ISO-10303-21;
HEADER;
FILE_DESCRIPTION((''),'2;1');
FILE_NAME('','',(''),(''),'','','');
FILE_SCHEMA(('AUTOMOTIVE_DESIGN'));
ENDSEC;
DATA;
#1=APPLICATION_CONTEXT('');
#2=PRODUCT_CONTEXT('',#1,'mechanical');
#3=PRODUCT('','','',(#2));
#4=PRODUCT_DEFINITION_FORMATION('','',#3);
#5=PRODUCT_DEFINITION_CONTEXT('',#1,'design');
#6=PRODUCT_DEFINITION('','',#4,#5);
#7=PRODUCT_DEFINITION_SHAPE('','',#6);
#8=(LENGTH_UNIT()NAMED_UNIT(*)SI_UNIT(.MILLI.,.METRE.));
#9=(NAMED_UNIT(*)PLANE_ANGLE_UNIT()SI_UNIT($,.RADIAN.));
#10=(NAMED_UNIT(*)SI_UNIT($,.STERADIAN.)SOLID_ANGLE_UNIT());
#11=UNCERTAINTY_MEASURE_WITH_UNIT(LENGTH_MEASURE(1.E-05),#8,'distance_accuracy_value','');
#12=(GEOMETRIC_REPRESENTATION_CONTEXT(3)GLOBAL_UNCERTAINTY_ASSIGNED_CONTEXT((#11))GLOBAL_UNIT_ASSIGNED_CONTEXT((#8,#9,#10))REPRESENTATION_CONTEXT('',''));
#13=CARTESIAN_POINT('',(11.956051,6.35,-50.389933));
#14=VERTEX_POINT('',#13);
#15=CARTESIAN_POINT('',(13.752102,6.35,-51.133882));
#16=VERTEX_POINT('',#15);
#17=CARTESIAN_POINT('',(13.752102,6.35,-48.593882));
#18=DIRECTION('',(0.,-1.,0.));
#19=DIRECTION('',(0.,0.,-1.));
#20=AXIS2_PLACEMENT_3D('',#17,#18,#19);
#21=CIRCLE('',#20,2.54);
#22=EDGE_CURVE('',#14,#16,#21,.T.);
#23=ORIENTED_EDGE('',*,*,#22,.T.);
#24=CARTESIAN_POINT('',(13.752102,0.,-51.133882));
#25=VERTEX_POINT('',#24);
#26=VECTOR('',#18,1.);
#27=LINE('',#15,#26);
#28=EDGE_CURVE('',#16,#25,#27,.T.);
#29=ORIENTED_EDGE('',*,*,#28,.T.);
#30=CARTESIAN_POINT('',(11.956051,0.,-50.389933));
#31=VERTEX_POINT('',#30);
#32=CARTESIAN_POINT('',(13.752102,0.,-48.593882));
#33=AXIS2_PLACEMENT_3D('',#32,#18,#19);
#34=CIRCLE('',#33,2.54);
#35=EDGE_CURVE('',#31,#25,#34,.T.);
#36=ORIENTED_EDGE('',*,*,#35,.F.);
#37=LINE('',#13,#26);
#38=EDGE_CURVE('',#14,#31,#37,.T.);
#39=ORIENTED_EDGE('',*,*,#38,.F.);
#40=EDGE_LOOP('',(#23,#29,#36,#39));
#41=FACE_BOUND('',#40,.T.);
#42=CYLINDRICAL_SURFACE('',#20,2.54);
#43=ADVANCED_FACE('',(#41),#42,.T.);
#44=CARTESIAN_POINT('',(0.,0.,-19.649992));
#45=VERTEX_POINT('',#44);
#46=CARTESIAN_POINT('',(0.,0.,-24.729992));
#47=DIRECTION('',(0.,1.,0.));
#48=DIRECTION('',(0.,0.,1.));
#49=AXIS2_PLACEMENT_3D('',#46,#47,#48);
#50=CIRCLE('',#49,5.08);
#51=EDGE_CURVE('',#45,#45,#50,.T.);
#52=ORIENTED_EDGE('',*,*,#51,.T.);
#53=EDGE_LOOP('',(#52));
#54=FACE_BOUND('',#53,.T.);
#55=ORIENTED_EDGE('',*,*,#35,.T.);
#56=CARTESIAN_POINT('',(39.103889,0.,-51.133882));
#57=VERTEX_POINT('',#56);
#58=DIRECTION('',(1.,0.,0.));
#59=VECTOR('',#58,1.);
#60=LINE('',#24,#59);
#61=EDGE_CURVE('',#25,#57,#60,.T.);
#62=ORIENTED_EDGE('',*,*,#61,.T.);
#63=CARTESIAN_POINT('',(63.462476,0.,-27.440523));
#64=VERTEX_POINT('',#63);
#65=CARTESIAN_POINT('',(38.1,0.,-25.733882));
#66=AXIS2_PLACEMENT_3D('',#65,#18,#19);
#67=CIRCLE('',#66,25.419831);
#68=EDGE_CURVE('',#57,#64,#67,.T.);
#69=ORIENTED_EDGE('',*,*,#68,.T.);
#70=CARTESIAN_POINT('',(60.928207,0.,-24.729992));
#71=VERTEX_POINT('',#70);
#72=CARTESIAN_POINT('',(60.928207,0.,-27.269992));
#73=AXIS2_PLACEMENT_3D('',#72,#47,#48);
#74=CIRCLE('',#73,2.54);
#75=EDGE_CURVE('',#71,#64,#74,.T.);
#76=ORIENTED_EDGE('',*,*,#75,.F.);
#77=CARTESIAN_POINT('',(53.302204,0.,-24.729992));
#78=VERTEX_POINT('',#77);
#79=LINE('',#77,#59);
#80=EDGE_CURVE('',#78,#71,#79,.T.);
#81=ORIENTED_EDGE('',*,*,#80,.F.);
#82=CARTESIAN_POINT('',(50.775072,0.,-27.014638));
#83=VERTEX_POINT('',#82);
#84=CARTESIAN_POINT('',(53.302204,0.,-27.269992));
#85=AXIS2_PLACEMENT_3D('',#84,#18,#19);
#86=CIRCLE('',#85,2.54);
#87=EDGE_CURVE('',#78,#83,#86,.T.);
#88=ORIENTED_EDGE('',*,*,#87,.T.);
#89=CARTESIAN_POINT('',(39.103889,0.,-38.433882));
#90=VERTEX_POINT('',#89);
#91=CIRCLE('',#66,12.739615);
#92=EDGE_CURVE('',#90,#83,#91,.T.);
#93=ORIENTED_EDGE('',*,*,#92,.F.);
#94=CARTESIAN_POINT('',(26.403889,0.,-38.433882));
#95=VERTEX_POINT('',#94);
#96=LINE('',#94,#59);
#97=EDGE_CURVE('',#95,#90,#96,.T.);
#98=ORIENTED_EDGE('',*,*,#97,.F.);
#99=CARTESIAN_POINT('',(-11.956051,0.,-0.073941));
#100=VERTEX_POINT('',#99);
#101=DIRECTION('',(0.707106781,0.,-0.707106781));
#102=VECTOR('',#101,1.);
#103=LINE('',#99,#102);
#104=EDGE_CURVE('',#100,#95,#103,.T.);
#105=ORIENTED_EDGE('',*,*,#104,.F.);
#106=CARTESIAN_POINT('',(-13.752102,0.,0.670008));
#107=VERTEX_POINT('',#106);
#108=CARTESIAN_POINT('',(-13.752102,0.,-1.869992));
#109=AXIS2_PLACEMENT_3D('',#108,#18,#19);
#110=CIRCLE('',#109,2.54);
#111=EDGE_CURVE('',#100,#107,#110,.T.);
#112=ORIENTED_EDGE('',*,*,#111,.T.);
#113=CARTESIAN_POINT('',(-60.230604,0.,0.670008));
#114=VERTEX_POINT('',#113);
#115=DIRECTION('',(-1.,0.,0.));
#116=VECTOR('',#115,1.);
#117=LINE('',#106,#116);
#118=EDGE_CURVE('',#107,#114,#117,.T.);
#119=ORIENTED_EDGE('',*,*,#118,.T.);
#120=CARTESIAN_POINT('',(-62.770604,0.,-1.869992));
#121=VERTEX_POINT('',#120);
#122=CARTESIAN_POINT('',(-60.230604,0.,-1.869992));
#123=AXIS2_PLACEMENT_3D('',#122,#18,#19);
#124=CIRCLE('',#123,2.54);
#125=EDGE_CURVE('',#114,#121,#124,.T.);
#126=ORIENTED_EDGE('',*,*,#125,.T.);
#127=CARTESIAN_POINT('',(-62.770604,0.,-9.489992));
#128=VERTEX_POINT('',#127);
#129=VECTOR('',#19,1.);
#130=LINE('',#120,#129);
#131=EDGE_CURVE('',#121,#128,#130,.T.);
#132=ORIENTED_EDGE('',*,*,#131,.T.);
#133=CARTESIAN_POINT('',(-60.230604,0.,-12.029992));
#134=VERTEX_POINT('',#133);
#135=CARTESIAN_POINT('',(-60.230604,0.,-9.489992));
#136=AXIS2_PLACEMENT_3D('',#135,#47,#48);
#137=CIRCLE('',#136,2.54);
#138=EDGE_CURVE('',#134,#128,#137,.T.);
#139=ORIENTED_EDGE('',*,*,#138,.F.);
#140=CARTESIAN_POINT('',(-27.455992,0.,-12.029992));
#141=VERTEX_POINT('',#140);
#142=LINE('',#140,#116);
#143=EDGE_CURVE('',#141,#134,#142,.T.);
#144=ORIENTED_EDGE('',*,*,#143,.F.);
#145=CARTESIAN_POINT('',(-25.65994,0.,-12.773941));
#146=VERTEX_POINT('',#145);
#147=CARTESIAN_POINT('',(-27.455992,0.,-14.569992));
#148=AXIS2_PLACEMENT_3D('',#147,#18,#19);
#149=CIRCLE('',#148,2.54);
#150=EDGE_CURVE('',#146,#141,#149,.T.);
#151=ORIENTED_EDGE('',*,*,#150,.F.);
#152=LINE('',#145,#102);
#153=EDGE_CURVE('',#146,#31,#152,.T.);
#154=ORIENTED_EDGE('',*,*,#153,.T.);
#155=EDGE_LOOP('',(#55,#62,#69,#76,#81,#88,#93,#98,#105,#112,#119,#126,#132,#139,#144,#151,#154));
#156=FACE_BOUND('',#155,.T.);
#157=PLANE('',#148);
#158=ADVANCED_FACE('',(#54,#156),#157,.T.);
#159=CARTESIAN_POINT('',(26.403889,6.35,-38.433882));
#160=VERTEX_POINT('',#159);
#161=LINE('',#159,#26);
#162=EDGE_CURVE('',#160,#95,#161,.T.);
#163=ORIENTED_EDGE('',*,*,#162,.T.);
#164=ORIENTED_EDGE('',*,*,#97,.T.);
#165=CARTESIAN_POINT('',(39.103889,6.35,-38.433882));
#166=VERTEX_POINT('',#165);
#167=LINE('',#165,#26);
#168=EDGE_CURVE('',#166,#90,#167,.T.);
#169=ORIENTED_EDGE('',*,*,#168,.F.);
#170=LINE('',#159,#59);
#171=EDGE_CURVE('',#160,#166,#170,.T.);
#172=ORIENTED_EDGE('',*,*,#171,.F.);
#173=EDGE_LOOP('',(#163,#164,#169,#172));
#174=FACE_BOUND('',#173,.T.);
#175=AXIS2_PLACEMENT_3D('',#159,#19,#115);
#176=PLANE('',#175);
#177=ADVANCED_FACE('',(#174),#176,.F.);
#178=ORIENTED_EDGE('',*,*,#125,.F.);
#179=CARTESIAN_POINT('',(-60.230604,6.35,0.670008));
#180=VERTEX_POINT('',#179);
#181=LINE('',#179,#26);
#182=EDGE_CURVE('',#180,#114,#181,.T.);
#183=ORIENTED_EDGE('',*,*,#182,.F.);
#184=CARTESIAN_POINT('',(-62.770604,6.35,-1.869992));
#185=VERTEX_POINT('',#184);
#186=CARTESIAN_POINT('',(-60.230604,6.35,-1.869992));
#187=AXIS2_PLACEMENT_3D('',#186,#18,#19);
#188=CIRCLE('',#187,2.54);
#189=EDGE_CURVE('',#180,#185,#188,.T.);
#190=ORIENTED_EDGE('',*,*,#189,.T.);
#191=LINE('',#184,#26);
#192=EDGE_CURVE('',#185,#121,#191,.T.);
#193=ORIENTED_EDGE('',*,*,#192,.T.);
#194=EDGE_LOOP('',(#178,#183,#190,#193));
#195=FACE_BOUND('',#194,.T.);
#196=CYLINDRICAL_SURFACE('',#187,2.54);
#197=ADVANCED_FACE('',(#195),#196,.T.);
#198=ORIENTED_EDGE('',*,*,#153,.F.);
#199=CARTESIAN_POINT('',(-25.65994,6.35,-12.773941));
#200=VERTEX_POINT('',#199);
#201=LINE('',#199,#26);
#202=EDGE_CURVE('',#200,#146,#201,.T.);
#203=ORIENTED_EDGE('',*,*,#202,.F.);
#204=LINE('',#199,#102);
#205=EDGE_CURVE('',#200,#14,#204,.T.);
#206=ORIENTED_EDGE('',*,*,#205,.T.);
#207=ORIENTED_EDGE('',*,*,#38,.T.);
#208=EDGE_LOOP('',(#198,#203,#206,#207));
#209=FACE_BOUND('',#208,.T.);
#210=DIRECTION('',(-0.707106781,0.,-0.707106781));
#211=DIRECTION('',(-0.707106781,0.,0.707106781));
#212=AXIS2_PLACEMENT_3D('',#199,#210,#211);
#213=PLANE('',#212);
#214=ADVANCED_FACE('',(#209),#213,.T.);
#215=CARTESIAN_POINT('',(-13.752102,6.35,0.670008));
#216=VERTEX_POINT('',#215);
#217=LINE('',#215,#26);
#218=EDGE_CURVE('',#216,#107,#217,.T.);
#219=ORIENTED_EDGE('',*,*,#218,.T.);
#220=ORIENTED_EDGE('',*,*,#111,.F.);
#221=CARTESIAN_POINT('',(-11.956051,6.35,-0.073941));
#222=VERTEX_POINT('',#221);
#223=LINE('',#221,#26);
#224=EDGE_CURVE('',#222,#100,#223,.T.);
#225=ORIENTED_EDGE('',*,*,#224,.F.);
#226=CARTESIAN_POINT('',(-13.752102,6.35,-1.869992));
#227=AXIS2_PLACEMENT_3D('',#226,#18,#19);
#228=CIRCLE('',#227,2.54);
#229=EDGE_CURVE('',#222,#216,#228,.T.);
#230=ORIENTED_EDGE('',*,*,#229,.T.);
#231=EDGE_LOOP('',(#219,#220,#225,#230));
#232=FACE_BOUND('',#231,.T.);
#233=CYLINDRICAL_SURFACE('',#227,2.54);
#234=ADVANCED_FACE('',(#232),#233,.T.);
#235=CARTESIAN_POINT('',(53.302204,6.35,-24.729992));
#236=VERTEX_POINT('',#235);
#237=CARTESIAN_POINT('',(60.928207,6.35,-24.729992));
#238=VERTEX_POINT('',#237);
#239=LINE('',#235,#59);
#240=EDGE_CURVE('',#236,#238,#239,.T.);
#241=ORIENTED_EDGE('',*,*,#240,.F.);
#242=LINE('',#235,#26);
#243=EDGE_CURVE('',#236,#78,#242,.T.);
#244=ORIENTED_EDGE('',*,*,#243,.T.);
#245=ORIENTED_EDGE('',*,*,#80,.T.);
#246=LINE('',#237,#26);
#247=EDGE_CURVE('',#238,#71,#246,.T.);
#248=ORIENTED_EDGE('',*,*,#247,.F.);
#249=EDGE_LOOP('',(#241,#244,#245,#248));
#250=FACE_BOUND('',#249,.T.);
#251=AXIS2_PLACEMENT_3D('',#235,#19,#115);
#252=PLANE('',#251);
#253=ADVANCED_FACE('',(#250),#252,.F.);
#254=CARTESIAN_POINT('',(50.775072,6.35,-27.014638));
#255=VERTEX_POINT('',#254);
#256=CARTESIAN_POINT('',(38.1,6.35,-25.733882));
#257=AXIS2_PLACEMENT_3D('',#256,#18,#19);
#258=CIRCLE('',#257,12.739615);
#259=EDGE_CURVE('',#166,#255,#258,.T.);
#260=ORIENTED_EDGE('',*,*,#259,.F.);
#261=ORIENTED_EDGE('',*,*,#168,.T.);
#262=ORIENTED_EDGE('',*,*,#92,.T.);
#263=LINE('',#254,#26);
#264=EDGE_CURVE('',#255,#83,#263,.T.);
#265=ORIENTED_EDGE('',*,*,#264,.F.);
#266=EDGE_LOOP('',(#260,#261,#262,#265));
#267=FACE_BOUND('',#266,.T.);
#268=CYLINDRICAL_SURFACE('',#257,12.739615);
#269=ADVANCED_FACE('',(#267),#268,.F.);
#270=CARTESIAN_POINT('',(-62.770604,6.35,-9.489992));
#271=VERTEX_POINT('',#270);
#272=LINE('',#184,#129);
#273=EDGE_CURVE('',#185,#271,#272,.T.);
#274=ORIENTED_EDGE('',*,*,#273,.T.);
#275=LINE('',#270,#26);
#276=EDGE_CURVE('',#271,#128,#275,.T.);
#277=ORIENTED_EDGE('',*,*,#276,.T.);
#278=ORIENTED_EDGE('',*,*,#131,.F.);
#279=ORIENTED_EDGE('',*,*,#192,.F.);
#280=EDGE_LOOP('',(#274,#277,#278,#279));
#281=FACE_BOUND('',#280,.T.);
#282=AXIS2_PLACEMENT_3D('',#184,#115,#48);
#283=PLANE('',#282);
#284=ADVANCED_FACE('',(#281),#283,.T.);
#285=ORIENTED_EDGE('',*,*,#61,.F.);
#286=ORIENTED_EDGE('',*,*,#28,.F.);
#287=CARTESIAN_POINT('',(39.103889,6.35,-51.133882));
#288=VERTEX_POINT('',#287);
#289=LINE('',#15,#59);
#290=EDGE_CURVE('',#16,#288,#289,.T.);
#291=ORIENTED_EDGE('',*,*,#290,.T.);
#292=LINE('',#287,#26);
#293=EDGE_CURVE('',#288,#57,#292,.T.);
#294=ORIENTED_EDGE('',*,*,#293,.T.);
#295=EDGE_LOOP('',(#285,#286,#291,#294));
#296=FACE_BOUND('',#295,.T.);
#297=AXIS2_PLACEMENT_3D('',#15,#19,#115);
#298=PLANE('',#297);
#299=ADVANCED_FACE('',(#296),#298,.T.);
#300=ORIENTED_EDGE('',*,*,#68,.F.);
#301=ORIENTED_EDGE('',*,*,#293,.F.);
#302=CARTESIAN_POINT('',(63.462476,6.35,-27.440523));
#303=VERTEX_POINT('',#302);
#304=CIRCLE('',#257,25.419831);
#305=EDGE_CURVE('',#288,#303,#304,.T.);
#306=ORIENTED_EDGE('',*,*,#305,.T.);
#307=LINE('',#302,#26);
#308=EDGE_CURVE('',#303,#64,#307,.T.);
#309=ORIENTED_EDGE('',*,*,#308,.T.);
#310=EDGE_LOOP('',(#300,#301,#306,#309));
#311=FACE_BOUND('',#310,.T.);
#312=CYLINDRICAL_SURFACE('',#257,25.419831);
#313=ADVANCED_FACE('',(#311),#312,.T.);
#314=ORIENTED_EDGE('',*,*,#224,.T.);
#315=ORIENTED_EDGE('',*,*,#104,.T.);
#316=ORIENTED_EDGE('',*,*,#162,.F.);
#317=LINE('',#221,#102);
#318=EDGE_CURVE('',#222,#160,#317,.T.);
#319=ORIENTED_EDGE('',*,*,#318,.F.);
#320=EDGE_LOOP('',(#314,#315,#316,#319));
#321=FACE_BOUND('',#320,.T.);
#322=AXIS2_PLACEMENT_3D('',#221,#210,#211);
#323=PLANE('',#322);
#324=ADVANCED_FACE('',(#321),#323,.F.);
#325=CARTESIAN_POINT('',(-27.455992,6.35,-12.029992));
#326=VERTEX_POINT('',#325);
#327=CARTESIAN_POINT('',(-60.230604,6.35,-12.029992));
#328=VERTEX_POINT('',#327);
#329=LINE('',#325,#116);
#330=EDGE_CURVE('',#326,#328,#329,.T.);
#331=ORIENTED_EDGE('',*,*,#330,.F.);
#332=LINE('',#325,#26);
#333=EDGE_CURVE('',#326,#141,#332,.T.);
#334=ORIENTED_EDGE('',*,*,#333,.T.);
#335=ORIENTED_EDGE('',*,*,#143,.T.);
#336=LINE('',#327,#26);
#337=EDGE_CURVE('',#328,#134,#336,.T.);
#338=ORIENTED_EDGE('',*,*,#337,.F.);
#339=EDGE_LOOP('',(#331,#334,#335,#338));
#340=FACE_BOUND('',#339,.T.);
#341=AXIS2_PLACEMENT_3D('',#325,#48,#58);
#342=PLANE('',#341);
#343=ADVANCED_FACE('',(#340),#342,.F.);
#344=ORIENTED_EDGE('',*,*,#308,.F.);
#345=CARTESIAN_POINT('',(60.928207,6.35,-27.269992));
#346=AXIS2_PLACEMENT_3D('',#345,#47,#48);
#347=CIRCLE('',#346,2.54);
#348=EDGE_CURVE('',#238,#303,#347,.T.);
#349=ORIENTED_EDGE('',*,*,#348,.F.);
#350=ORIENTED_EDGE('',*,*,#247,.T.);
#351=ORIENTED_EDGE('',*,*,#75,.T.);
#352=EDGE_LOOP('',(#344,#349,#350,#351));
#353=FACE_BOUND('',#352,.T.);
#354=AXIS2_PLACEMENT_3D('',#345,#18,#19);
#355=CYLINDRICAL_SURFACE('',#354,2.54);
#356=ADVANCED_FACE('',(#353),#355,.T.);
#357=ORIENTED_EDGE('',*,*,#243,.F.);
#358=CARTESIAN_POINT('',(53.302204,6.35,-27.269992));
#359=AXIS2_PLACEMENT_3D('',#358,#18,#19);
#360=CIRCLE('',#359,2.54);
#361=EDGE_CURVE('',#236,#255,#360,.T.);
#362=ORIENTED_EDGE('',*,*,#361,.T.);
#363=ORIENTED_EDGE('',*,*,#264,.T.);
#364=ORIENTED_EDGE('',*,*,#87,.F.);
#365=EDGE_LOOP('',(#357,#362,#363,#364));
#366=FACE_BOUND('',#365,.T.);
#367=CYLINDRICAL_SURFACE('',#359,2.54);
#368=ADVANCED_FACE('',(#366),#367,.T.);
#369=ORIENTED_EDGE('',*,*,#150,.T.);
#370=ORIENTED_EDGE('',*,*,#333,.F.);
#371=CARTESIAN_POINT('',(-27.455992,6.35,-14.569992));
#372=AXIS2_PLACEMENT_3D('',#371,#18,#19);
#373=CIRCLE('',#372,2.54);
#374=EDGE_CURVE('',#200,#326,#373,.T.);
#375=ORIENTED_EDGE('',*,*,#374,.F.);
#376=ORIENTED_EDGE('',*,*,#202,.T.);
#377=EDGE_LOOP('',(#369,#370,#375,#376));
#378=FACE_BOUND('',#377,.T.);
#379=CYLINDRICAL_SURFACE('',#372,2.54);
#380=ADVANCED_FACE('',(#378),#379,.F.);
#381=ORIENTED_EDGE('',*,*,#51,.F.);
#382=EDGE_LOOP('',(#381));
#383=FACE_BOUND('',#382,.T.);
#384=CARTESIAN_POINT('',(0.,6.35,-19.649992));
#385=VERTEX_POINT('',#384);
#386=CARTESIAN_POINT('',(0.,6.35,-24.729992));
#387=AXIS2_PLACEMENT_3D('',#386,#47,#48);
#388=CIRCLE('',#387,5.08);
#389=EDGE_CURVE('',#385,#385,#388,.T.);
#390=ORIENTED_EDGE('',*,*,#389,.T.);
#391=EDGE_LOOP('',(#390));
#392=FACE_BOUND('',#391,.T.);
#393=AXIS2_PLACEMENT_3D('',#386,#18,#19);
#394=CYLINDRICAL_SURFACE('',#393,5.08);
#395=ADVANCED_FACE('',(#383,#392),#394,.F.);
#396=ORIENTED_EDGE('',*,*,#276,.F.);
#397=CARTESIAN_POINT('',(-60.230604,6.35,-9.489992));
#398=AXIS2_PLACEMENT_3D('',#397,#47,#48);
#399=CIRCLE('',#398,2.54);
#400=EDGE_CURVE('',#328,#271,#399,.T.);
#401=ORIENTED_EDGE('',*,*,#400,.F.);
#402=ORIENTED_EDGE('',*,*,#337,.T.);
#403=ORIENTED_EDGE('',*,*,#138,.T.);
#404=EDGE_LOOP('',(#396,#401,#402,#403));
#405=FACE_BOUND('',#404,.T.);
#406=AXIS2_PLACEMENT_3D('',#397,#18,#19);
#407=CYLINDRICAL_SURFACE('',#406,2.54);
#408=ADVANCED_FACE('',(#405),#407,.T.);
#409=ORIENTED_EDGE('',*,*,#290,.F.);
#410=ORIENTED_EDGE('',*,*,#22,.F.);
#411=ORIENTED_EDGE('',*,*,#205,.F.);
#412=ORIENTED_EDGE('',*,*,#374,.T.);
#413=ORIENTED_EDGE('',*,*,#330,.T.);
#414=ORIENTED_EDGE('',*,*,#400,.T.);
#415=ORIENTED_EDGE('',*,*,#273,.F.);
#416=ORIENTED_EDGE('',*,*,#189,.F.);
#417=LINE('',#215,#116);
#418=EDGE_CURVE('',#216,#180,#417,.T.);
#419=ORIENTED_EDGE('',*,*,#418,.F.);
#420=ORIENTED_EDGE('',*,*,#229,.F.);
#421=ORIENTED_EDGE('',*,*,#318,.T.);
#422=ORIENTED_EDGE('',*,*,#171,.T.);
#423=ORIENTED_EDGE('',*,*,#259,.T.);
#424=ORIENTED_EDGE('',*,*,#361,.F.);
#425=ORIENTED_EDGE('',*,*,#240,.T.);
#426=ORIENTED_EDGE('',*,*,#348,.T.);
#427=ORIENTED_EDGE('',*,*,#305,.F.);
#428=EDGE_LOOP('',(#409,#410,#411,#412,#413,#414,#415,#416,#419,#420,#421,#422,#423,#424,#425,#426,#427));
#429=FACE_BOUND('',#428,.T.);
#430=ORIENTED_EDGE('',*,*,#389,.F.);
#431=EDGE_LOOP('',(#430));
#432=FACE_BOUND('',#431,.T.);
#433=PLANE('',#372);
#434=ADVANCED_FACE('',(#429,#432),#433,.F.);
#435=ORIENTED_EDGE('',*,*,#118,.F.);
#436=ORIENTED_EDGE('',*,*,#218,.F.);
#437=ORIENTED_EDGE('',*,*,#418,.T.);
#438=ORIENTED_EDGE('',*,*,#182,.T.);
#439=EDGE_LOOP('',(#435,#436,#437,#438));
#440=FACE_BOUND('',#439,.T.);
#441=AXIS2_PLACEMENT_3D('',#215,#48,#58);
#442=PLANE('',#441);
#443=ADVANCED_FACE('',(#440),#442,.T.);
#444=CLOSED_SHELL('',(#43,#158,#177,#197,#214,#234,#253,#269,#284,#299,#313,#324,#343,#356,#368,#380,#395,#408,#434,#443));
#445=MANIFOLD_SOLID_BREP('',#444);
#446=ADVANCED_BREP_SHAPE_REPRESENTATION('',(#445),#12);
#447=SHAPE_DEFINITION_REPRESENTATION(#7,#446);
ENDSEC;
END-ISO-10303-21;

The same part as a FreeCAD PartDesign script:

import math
import FreeCAD as App
import Part
import Sketcher
from FreeCAD import Vector
Q = App.Units.Quantity

doc = App.newDocument("Part")
body = doc.addObject("PartDesign::Body", "Body")

# Sketch on XZ plane
sketch1 = body.newObject("Sketcher::SketchObject", "Sketch")
sketch1.AttachmentSupport = (doc.getObject("XZ_Plane"), [""])
sketch1.MapMode = "FlatFace"
sketch1.addGeometry([
    Part.LineSegment(Vector(-11.956051, -0.073941, 0), Vector(26.403889, -38.433882, 0)),  # 0
    Part.LineSegment(Vector(26.403889, -38.433882, 0), Vector(39.103889, -38.433882, 0)),  # 1
    Part.ArcOfCircle(Part.Circle(Vector(38.1, -25.733882, 0), Vector(0, 0, 1), 12.739615), math.radians(-85.480373), math.radians(-5.769884)),  # 2
    Part.ArcOfCircle(Part.Circle(Vector(53.302204, -27.269992, 0), Vector(0, 0, 1), 2.54), math.radians(90), math.radians(174.230116)),  # 3
    Part.LineSegment(Vector(53.302204, -24.729992, 0), Vector(60.928207, -24.729992, 0)),  # 4
    Part.ArcOfCircle(Part.Circle(Vector(60.928207, -27.269992, 0), Vector(0, 0, 1), 2.54), math.radians(-3.849632), math.radians(90)),  # 5
    Part.ArcOfCircle(Part.Circle(Vector(38.1, -25.733882, 0), Vector(0, 0, 1), 25.419831), math.radians(-87.736666), math.radians(-3.849632)),  # 6
    Part.LineSegment(Vector(39.103889, -51.133882, 0), Vector(13.752102, -51.133882, 0)),  # 7
    Part.ArcOfCircle(Part.Circle(Vector(13.752102, -48.593882, 0), Vector(0, 0, 1), 2.54), math.radians(-135), math.radians(-90)),  # 8
    Part.LineSegment(Vector(11.956051, -50.389933, 0), Vector(-25.65994, -12.773941, 0)),  # 9
    Part.ArcOfCircle(Part.Circle(Vector(-27.455992, -14.569992, 0), Vector(0, 0, 1), 2.54), math.radians(45), math.radians(90)),  # 10
    Part.LineSegment(Vector(-27.455992, -12.029992, 0), Vector(-60.230604, -12.029992, 0)),  # 11
    Part.ArcOfCircle(Part.Circle(Vector(-60.230604, -9.489992, 0), Vector(0, 0, 1), 2.54), math.radians(180), math.radians(270)),  # 12
    Part.LineSegment(Vector(-62.770604, -9.489992, 0), Vector(-62.770604, -1.869992, 0)),  # 13
    Part.ArcOfCircle(Part.Circle(Vector(-60.230604, -1.869992, 0), Vector(0, 0, 1), 2.54), math.radians(90), math.radians(180)),  # 14
    Part.LineSegment(Vector(-60.230604, 0.670008, 0), Vector(-13.752102, 0.670008, 0)),  # 15
    Part.ArcOfCircle(Part.Circle(Vector(-13.752102, -1.869992, 0), Vector(0, 0, 1), 2.54), math.radians(45), math.radians(90)),  # 16
    Part.Circle(Vector(0, -24.729992, 0), Vector(0, 0, 1), 5.08),  # 17
], False)
sketch1.addConstraint([
    Sketcher.Constraint("Coincident", 0, 2, 1, 1),
    Sketcher.Constraint("Coincident", 1, 2, 2, 1),
    Sketcher.Constraint("Tangent", 2, 2, 3, 2),
    Sketcher.Constraint("Tangent", 3, 1, 4, 1),
    Sketcher.Constraint("Tangent", 4, 2, 5, 2),
    Sketcher.Constraint("Tangent", 5, 1, 6, 2),
    Sketcher.Constraint("Coincident", 6, 1, 7, 1),
    Sketcher.Constraint("Tangent", 7, 2, 8, 2),
    Sketcher.Constraint("Tangent", 8, 1, 9, 1),
    Sketcher.Constraint("Tangent", 9, 2, 10, 1),
    Sketcher.Constraint("Tangent", 10, 2, 11, 1),
    Sketcher.Constraint("Tangent", 11, 2, 12, 2),
    Sketcher.Constraint("Tangent", 12, 1, 13, 1),
    Sketcher.Constraint("Tangent", 13, 2, 14, 2),
    Sketcher.Constraint("Tangent", 14, 1, 15, 1),
    Sketcher.Constraint("Tangent", 15, 2, 16, 2),
    Sketcher.Constraint("Tangent", 16, 1, 0, 1),
    Sketcher.Constraint("Horizontal", 1),
    Sketcher.Constraint("Horizontal", 4),
    Sketcher.Constraint("Horizontal", 7),
    Sketcher.Constraint("Horizontal", 11),
    Sketcher.Constraint("Vertical", 13),
    Sketcher.Constraint("Horizontal", 15),
    Sketcher.Constraint("Coincident", 6, 3, 2, 3),
    Sketcher.Constraint("Equal", 3, 5),
    Sketcher.Constraint("Equal", 5, 8),
    Sketcher.Constraint("Equal", 8, 10),
    Sketcher.Constraint("Equal", 10, 12),
    Sketcher.Constraint("Equal", 12, 14),
    Sketcher.Constraint("Equal", 14, 16),
    Sketcher.Constraint("PointOnObject", 17, 3, -2),
    Sketcher.Constraint("Parallel", 0, 9),
    Sketcher.Constraint("Horizontal", 17, 3, 3, 1),
    Sketcher.Constraint("Vertical", 1, 2, 6, 1),
    Sketcher.Constraint("Diameter", 17, Q("0.4 in")),
    Sketcher.Constraint("Radius", 3, Q("0.1 in")),
    Sketcher.Constraint("DistanceX", 1, 1, 1, 2, Q("0.5 in")),
    Sketcher.Constraint("DistanceY", 13, 1, 13, 2, Q("0.3 in")),
    Sketcher.Constraint("Angle", 0, Q("-45 deg")),
    Sketcher.Constraint("DistanceY", 6, 1, 6, 3, Q("1 in")),
    Sketcher.Constraint("DistanceY", 17, 3, 15, 2, Q("1 in")),
    Sketcher.Constraint("DistanceX", -1, 1, 2, 3, Q("1.5 in")),
    Sketcher.Constraint("DistanceY", 8, 3, 0, 2, Q("0.4 in")),
    Sketcher.Constraint("Radius", 6, Q("25.419831 mm")),
    Sketcher.Constraint("DistanceX", 15, 1, 15, 2, Q("46.478502 mm")),
    Sketcher.Constraint("DistanceX", 8, 3, 3, 3, Q("39.550101 mm")),
    Sketcher.Constraint("DistanceX", 10, 3, 5, 3, Q("88.384198 mm")),
    Sketcher.Constraint("DistanceY", 2, 3, -1, 1, Q("25.733882 mm")),
])
pad1 = body.newObject("PartDesign::Pad", "Pad")
pad1.Profile = sketch1
pad1.Length = Q("0.25 in")
pad1.Reversed = True

doc.recompute()
